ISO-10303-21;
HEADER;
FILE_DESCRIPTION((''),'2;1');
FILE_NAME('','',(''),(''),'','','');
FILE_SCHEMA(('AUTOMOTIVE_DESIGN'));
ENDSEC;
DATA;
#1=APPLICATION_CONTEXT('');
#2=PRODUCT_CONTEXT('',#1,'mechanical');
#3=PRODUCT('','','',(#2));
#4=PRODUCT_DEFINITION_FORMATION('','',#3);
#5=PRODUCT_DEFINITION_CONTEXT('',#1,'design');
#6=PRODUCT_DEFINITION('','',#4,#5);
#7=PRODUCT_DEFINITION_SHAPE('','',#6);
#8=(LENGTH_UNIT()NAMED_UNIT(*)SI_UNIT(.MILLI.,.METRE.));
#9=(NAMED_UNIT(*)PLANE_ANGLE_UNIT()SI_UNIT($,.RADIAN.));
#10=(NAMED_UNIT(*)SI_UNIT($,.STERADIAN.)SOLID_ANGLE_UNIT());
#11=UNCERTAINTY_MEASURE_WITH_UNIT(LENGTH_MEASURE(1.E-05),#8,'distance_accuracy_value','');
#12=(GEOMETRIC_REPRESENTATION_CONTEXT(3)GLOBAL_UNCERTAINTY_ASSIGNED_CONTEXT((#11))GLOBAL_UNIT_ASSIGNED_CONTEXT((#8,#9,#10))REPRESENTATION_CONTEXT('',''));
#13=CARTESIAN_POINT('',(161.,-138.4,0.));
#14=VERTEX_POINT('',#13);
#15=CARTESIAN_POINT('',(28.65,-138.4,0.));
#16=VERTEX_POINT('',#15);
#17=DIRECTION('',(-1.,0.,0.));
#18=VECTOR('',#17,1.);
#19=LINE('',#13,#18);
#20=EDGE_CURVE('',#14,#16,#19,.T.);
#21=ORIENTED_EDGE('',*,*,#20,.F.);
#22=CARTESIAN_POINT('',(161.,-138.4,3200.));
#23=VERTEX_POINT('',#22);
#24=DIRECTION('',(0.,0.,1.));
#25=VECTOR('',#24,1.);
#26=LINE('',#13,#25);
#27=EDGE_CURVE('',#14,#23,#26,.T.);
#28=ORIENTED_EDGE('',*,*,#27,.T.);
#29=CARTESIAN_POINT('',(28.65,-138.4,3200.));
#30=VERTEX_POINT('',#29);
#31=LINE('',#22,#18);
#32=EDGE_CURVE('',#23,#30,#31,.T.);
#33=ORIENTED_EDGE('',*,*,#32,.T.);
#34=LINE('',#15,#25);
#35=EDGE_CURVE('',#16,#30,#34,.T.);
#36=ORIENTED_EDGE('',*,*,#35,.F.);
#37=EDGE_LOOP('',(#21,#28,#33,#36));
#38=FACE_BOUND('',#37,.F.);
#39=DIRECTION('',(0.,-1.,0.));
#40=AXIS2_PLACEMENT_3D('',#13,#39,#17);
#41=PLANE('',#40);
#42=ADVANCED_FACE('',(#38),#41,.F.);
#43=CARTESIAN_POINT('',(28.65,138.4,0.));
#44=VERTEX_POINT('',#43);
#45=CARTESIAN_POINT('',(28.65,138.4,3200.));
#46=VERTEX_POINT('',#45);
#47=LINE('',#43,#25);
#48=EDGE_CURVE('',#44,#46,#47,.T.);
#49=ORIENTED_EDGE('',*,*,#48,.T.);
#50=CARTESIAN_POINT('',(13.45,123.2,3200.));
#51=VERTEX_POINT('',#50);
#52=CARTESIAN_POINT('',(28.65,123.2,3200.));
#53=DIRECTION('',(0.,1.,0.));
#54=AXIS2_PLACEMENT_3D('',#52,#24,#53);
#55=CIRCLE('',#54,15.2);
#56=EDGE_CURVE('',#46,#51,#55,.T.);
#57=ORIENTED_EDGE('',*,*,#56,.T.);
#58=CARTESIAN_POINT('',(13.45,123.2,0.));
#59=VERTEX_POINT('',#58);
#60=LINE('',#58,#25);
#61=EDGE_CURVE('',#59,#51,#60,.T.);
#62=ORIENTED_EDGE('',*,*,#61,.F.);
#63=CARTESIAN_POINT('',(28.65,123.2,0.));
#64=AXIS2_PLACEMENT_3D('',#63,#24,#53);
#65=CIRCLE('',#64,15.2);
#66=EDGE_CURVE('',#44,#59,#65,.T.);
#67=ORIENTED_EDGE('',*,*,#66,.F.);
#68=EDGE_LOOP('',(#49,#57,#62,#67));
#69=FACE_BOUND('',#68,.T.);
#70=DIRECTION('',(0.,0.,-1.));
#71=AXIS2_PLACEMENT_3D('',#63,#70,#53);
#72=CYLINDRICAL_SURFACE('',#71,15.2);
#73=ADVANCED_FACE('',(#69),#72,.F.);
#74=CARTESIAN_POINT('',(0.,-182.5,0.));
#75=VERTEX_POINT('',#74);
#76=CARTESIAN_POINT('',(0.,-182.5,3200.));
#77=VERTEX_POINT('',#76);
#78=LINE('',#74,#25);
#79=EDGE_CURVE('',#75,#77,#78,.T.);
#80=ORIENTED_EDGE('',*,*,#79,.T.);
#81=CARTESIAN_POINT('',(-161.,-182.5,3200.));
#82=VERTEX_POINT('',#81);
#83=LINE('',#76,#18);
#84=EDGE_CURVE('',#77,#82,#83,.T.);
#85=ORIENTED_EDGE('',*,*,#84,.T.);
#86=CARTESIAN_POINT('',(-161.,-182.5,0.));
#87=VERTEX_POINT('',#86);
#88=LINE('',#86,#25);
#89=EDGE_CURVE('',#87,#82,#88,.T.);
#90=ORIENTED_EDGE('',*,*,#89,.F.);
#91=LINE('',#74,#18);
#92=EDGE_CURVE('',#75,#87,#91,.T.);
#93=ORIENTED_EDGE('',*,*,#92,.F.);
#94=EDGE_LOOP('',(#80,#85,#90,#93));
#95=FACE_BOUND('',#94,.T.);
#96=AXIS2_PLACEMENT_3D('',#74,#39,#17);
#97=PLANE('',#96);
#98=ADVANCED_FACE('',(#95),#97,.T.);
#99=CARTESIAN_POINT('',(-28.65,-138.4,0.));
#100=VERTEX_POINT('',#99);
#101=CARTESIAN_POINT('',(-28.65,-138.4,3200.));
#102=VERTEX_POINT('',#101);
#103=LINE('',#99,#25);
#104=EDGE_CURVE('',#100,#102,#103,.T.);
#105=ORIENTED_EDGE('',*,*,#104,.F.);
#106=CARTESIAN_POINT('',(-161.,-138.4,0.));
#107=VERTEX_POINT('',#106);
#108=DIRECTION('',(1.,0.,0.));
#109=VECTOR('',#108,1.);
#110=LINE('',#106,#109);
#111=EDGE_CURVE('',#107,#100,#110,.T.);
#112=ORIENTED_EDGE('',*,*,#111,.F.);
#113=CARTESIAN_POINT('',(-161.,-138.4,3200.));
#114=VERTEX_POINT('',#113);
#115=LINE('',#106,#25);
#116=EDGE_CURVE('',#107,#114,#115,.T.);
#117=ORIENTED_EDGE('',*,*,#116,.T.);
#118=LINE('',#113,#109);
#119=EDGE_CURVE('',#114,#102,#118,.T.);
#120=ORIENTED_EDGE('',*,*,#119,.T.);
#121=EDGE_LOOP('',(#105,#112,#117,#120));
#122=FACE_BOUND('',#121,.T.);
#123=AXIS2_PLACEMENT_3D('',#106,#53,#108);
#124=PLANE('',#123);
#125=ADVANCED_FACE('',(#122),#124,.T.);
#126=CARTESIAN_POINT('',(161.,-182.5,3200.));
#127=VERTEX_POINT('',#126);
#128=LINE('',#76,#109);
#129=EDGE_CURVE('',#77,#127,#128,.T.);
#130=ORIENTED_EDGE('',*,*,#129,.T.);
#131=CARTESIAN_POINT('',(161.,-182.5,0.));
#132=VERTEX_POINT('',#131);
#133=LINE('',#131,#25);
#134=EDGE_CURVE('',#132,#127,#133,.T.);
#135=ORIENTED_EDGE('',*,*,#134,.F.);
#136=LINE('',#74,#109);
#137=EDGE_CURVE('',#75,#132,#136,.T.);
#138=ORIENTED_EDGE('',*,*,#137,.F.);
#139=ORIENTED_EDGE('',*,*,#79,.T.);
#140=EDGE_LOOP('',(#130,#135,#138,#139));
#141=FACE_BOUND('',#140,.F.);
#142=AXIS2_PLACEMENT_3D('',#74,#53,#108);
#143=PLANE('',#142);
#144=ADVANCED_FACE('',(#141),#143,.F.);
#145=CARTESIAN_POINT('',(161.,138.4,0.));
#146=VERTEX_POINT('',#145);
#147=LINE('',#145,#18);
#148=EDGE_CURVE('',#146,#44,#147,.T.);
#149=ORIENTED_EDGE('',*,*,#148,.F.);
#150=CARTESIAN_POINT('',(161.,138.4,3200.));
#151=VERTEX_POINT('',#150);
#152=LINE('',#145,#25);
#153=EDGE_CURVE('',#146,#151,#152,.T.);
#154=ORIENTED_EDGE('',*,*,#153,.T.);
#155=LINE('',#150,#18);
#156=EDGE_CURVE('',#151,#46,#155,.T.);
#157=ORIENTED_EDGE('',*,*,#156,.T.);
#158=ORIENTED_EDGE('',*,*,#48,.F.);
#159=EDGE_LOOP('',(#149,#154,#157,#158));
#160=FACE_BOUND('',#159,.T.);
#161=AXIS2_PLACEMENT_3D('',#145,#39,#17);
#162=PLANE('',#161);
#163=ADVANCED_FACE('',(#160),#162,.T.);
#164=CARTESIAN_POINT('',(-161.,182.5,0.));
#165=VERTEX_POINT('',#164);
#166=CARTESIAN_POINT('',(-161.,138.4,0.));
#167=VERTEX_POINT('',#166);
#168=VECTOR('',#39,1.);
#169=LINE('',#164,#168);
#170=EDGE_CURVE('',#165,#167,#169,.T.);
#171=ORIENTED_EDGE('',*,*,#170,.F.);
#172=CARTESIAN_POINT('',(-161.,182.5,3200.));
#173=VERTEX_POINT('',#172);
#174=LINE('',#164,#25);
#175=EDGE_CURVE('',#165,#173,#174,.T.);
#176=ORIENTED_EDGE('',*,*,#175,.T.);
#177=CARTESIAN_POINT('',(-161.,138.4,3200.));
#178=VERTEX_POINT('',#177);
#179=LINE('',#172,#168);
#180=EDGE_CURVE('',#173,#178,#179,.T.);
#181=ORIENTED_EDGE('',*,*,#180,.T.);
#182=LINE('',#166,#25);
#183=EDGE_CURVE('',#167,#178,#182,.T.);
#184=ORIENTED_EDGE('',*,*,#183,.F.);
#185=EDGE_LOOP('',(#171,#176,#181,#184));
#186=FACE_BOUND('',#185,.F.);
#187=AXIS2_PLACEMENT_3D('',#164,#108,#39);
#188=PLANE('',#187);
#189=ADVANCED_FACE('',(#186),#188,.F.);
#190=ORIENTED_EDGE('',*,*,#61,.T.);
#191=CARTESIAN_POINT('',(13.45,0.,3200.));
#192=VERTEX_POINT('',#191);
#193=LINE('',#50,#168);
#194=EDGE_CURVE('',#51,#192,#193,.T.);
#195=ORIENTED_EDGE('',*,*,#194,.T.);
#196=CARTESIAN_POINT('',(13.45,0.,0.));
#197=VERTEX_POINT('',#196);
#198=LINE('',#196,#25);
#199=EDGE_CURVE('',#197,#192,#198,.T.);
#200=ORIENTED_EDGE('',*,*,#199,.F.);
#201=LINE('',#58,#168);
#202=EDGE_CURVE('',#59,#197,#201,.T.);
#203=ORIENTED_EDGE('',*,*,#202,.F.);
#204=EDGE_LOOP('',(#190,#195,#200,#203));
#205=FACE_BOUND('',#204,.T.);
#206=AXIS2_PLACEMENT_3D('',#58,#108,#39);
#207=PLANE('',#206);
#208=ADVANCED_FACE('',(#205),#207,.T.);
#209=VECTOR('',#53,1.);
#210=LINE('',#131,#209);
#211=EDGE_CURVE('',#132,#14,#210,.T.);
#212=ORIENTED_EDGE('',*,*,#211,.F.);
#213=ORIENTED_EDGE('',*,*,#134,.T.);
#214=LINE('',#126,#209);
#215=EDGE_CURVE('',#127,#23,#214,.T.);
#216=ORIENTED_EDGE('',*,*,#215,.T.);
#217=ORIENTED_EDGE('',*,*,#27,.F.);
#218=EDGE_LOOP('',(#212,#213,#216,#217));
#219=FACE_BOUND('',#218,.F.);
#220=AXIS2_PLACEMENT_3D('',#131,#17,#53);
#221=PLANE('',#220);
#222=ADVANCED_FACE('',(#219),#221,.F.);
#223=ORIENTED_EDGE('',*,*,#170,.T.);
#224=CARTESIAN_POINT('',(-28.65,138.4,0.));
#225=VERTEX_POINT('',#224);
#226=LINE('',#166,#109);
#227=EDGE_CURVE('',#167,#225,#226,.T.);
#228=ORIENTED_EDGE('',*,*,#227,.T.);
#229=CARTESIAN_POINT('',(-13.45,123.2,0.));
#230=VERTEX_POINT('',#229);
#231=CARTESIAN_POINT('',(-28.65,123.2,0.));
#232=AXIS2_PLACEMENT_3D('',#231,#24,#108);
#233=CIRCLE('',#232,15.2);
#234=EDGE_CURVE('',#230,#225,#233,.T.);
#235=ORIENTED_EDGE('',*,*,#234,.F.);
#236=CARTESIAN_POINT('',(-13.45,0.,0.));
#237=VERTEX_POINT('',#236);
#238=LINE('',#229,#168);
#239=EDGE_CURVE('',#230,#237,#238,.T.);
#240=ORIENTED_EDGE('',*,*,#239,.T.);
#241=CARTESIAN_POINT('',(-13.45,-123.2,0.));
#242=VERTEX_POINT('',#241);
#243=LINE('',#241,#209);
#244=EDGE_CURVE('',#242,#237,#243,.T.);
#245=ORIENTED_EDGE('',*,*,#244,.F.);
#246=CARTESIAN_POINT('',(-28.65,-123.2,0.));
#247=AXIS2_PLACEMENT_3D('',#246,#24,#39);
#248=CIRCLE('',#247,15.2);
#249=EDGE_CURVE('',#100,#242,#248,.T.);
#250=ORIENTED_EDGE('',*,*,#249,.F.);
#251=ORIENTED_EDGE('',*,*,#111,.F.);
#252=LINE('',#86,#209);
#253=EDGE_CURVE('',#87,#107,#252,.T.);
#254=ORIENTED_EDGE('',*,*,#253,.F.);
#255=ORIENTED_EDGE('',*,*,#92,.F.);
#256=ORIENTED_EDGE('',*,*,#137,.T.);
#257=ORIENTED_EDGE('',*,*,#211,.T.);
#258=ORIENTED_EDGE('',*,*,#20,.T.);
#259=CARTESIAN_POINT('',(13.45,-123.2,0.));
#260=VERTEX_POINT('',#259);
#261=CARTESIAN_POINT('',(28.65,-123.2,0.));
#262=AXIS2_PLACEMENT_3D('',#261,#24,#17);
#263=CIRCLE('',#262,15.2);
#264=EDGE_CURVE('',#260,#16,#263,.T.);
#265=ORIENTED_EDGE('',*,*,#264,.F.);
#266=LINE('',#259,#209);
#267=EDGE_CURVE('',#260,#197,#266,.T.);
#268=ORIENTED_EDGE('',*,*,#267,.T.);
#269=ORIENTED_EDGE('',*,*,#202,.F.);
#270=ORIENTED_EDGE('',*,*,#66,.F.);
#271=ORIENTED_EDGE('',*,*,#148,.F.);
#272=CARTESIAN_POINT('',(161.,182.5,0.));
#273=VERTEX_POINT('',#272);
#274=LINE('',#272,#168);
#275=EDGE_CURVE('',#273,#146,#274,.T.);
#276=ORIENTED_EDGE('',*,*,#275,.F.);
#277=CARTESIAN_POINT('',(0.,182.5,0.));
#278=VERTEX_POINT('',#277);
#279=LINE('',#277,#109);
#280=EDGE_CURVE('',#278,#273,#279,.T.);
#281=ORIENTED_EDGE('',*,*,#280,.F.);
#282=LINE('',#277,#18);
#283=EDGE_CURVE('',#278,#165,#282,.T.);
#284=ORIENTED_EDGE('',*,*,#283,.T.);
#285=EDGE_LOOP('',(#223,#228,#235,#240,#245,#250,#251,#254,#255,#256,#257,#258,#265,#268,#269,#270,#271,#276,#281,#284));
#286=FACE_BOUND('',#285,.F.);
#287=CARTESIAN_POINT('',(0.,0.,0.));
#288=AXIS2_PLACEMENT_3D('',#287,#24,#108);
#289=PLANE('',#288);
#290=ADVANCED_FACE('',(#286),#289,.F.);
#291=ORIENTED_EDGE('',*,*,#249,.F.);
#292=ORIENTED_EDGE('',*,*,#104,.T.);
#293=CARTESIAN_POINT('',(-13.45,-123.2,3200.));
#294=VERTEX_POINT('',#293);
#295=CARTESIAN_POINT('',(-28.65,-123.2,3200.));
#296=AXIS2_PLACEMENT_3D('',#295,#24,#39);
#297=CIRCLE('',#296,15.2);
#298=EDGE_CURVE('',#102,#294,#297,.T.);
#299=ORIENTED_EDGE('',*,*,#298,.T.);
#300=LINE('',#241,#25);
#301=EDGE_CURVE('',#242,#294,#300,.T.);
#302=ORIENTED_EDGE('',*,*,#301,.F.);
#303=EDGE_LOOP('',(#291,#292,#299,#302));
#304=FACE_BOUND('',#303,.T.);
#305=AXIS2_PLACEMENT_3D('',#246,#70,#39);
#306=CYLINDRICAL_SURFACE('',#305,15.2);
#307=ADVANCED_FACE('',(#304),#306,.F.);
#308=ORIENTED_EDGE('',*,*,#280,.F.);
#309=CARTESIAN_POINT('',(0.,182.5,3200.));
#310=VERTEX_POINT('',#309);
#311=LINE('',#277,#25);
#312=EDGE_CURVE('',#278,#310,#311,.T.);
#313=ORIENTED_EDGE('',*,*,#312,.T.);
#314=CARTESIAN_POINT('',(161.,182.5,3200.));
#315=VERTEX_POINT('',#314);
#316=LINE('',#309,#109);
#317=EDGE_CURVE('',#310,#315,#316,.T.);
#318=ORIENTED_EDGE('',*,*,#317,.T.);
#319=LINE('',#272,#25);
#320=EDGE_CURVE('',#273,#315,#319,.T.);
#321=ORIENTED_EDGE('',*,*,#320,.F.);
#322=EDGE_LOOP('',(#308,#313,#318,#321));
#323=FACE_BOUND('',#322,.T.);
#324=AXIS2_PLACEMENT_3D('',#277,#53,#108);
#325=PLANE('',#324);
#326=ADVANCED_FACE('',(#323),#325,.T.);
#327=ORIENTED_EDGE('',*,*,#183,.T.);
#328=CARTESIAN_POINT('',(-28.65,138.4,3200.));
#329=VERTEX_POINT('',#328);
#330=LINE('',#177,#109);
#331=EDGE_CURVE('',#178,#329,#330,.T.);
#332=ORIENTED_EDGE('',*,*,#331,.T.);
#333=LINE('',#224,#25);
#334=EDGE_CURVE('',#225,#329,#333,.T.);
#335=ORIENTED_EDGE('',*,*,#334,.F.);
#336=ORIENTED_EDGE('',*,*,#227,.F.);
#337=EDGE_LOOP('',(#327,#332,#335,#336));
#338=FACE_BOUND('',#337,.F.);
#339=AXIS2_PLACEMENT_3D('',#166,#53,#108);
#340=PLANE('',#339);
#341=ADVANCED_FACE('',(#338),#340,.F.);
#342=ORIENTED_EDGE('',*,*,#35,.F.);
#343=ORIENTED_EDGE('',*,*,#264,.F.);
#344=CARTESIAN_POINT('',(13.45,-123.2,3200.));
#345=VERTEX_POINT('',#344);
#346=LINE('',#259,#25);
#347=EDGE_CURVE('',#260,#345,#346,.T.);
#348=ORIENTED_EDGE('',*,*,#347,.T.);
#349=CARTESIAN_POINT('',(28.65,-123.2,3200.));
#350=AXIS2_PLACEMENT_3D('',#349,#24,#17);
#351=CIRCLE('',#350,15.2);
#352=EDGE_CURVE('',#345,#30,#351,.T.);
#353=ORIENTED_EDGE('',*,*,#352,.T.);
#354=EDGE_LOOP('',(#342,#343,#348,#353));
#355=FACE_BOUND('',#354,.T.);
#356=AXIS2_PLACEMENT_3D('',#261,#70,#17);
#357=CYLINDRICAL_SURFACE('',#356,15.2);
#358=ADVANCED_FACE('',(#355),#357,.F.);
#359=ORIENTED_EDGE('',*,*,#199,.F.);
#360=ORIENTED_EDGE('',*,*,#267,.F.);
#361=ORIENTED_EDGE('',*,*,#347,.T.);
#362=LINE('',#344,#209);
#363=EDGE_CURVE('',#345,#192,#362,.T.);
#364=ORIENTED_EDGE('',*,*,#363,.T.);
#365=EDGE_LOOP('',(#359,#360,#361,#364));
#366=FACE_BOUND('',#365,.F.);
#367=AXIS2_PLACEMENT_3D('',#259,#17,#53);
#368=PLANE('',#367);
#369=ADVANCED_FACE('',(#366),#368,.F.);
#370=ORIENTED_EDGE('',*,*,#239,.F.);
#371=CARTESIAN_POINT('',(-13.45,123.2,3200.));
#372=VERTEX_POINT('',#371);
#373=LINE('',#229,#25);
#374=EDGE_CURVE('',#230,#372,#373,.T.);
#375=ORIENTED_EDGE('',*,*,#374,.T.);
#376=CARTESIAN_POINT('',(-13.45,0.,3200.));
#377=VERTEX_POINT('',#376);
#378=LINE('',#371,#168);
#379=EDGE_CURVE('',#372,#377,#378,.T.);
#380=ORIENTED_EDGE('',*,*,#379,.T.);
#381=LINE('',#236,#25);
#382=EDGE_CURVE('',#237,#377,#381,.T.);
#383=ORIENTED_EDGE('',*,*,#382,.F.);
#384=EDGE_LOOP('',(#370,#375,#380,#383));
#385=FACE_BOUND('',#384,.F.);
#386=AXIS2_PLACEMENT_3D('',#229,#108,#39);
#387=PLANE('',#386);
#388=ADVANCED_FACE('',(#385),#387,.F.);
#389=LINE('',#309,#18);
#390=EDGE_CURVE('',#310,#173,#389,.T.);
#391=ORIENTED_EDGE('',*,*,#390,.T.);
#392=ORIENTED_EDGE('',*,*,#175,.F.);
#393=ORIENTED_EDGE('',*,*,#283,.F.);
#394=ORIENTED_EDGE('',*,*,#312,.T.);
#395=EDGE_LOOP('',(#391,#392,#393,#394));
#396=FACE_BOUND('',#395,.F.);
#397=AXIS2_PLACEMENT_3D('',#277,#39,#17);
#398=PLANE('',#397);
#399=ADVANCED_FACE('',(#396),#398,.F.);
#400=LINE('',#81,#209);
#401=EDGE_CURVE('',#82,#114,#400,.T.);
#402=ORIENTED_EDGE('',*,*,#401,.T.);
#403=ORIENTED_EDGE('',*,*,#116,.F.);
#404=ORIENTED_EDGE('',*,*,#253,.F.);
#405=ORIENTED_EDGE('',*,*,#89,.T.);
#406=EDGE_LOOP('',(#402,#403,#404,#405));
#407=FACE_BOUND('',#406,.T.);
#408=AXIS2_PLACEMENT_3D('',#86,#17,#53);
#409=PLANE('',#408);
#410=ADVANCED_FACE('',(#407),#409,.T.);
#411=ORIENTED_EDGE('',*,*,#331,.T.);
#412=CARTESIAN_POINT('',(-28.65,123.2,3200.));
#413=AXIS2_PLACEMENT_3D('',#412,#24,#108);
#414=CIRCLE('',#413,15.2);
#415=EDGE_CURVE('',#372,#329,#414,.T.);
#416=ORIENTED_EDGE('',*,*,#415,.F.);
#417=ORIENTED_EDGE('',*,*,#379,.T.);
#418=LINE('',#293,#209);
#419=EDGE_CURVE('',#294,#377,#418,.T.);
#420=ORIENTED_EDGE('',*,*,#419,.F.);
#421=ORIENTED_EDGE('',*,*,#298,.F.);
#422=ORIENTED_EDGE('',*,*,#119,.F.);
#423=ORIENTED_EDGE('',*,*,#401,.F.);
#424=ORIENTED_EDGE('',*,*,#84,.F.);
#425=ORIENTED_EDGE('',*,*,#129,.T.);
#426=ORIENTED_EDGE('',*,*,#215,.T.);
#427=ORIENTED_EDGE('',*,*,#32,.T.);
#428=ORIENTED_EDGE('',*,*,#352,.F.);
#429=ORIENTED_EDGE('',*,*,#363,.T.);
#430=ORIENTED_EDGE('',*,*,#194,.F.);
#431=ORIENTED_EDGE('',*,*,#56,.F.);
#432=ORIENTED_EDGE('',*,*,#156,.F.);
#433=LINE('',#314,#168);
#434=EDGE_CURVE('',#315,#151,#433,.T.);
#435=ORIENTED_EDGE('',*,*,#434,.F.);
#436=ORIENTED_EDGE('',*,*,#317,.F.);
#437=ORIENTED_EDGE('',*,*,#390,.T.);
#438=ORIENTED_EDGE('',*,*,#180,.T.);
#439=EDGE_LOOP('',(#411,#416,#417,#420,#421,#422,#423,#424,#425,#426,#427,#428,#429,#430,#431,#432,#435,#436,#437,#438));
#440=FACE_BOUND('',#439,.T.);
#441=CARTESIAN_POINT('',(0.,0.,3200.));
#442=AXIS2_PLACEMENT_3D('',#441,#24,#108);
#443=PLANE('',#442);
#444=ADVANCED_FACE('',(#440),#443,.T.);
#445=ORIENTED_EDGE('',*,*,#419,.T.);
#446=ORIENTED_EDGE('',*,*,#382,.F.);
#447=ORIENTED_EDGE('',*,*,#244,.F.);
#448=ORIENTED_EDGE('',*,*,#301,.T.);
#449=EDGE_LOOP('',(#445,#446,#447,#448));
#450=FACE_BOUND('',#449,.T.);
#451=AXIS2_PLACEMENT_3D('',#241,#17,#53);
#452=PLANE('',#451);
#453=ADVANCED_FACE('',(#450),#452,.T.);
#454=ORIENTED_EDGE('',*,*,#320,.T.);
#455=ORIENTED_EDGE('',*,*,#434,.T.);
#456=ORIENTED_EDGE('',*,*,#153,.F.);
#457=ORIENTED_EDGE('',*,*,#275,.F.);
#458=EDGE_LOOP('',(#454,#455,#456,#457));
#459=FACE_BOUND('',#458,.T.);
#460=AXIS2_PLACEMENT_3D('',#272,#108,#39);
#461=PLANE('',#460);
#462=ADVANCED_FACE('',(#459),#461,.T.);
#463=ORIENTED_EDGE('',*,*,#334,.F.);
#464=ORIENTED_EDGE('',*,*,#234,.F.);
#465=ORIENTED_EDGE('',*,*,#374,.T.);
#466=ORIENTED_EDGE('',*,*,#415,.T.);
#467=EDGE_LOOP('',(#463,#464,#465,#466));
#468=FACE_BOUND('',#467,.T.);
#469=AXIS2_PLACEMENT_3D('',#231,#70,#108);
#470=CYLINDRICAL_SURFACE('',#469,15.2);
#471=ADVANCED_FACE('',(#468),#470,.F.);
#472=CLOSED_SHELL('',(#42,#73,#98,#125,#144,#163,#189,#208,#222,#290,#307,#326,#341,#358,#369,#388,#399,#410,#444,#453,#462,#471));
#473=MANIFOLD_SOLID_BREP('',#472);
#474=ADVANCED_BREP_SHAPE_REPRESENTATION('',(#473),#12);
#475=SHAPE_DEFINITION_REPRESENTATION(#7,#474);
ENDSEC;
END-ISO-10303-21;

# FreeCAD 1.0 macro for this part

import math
import FreeCAD as App
import Part
import Sketcher
from FreeCAD import Vector
Q = App.Units.Quantity

doc = App.newDocument("Part")
params = doc.addObject("Spreadsheet::Sheet", "Params")
for row, (alias, value) in enumerate([
    ("sketch1_radius", "15.2 mm"),
    ("sketch1_height", "44.1 mm"),
    ("pad1_length", "3200 mm"),
], start=1):
    params.set(f"A{row}", alias)
    params.set(f"B{row}", "=" + value)
    params.setAlias(f"B{row}", alias)

body = doc.addObject("PartDesign::Body", "Body")

sketch1 = doc.addObject("Sketcher::SketchObject", "Sketch")
body.addObject(sketch1)
sketch1.AttachmentSupport = (doc.XY_Plane, [""])
sketch1.MapMode = "FlatFace"
sketch1.addGeometry([
    Part.LineSegment(Vector(-161, -138, 0), Vector(-161, -182, 0)),
    Part.LineSegment(Vector(-161, -182, 0), Vector(161, -182, 0)),
    Part.LineSegment(Vector(161, -182, 0), Vector(161, -138, 0)),
    Part.LineSegment(Vector(161, -138, 0), Vector(29, -138, 0)),
    Part.ArcOfCircle(Part.Circle(Vector(29, -123, 0), Vector(0, 0, 1), 15), math.radians(180), math.radians(270)),
    Part.LineSegment(Vector(13, -123, 0), Vector(13, 123, 0)),
    Part.ArcOfCircle(Part.Circle(Vector(29, 123, 0), Vector(0, 0, 1), 15), math.radians(90), math.radians(180)),
    Part.LineSegment(Vector(29, 138, 0), Vector(161, 138, 0)),
    Part.LineSegment(Vector(161, 138, 0), Vector(161, 182, 0)),
    Part.LineSegment(Vector(161, 182, 0), Vector(-161, 182, 0)),
    Part.LineSegment(Vector(-161, 182, 0), Vector(-161, 138, 0)),
    Part.LineSegment(Vector(-161, 138, 0), Vector(-29, 138, 0)),
    Part.ArcOfCircle(Part.Circle(Vector(-29, 123, 0), Vector(0, 0, 1), 15), math.radians(0), math.radians(90)),
    Part.LineSegment(Vector(-13, 123, 0), Vector(-13, -123, 0)),
    Part.ArcOfCircle(Part.Circle(Vector(-29, -123, 0), Vector(0, 0, 1), 15), math.radians(-90), math.radians(0)),
    Part.LineSegment(Vector(-29, -138, 0), Vector(-161, -138, 0)),
], False)
sketch1.addConstraint([
    Sketcher.Constraint("Coincident", 0, 2, 1, 1),
    Sketcher.Constraint("Coincident", 1, 2, 2, 1),
    Sketcher.Constraint("Coincident", 2, 2, 3, 1),
    Sketcher.Constraint("Tangent", 3, 2, 4, 2),
    Sketcher.Constraint("Tangent", 4, 1, 5, 1),
    Sketcher.Constraint("Tangent", 5, 2, 6, 2),
    Sketcher.Constraint("Tangent", 6, 1, 7, 1),
    Sketcher.Constraint("Coincident", 7, 2, 8, 1),
    Sketcher.Constraint("Coincident", 8, 2, 9, 1),
    Sketcher.Constraint("Coincident", 9, 2, 10, 1),
    Sketcher.Constraint("Coincident", 10, 2, 11, 1),
    Sketcher.Constraint("Tangent", 11, 2, 12, 2),
    Sketcher.Constraint("Tangent", 12, 1, 13, 1),
    Sketcher.Constraint("Tangent", 13, 2, 14, 2),
    Sketcher.Constraint("Tangent", 14, 1, 15, 1),
    Sketcher.Constraint("Coincident", 15, 2, 0, 1),
    Sketcher.Constraint("Vertical", 0),
    Sketcher.Constraint("Horizontal", 1),
    Sketcher.Constraint("Vertical", 2),
    Sketcher.Constraint("Horizontal", 3),
    Sketcher.Constraint("Vertical", 5),
    Sketcher.Constraint("Horizontal", 7),
    Sketcher.Constraint("Vertical", 8),
    Sketcher.Constraint("Horizontal", 9),
    Sketcher.Constraint("Vertical", 10),
    Sketcher.Constraint("Horizontal", 11),
    Sketcher.Constraint("Vertical", 13),
    Sketcher.Constraint("Horizontal", 15),
    Sketcher.Constraint("Equal", 4, 6),
    Sketcher.Constraint("Equal", 6, 12),
    Sketcher.Constraint("Equal", 12, 14),
    Sketcher.Constraint("Symmetric", 4, 3, 12, 3, -1, 1),
    Sketcher.Constraint("Symmetric", 0, 2, 8, 2, -1, 1),
    Sketcher.Constraint("Symmetric", 7, 2, 10, 2, -2),
    Sketcher.Constraint("Symmetric", 2, 2, 15, 2, -2),
    Sketcher.Constraint("Radius", 4, Q("15.2 mm")),
    Sketcher.Constraint("DistanceY", 0, 2, 0, 1, Q("44.1 mm")),
    Sketcher.Constraint("DistanceX", 0, 2, -1, 1, Q("161 mm")),
    Sketcher.Constraint("DistanceY", 0, 2, -1, 1, Q("182.5 mm")),
    Sketcher.Constraint("DistanceX", -1, 1, 4, 1, Q("13.45 mm")),
])
sketch1.setExpression("Constraints[35]", "Params.sketch1_radius")
sketch1.setExpression("Constraints[36]", "Params.sketch1_height")
pad1 = doc.addObject("PartDesign::Pad", "Pad")
body.addObject(pad1)
pad1.Profile = sketch1
pad1.setExpression("Length", "Params.pad1_length")

doc.recompute()
